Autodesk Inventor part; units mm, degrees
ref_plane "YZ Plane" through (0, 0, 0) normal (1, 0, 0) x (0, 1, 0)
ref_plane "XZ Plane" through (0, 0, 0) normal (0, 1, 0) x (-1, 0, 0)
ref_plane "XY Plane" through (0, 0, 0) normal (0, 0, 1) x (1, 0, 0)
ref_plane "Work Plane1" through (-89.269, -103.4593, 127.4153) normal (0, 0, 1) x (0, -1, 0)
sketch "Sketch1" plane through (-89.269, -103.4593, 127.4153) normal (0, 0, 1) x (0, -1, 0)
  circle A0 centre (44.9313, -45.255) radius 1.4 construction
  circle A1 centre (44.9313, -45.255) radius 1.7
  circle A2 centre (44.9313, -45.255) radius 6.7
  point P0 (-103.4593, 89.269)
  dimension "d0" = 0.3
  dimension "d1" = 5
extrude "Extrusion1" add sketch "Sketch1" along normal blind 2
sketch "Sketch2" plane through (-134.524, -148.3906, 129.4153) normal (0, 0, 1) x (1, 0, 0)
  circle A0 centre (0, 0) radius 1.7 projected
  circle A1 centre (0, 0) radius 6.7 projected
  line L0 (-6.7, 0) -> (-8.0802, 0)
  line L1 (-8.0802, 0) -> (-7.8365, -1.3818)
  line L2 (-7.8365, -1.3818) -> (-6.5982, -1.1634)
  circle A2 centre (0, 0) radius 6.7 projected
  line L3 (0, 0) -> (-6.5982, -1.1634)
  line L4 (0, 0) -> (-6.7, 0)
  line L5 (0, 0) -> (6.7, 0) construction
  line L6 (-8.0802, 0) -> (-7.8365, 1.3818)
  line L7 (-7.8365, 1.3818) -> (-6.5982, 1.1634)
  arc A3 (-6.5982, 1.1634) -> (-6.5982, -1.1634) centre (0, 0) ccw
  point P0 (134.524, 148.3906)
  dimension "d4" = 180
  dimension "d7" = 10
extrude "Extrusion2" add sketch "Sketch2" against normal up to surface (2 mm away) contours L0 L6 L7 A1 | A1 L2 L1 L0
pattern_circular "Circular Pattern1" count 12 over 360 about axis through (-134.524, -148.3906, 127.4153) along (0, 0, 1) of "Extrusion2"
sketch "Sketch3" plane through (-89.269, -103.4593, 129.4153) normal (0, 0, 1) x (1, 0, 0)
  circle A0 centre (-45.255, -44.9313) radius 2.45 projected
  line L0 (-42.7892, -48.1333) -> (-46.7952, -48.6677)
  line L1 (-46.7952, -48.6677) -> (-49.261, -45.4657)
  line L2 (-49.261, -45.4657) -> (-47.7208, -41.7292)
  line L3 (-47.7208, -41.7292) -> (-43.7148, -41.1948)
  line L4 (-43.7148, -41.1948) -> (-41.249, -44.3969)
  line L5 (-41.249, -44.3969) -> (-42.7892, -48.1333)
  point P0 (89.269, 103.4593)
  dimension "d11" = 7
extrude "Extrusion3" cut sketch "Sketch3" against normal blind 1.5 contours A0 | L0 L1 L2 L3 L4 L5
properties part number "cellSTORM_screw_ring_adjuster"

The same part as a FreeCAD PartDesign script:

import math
import FreeCAD as App
import Part
import Sketcher
from FreeCAD import Vector
Q = App.Units.Quantity

doc = App.newDocument("Part")
params = doc.addObject("Spreadsheet::Sheet", "Params")
for row, (alias, value) in enumerate([
    ("sketch1_diameter", "13.4 mm"),
    ("sketch1_diameter2", "3.4 mm"),
    ("pad1_length", "2 mm"),
    ("sketch2_radius", "6.7 mm"),
    ("pad2_length", "2 mm"),
    ("pocket1_length", "1.5 mm"),
], start=1):
    params.set(f"A{row}", alias)
    params.set(f"B{row}", "=" + value)
    params.setAlias(f"B{row}", alias)

body = doc.addObject("PartDesign::Body", "Body")

# Sketch on XY plane
sketch1 = doc.addObject("Sketcher::SketchObject", "Sketch")
body.addObject(sketch1)
sketch1.AttachmentSupport = (doc.XY_Plane, [""])
sketch1.MapMode = "FlatFace"
sketch1.AttachmentOffset = App.Placement(Vector(0, 0, 127.4153), App.Rotation())
sketch1.addGeometry([
    Part.Circle(Vector(-134.5, -148.4, 0), Vector(0, 0, 1), 6.7),
    Part.Circle(Vector(-134.5, -148.4, 0), Vector(0, 0, 1), 1.7),
], False)
sketch1.addConstraint([
    Sketcher.Constraint("Coincident", 1, 3, 0, 3),
    Sketcher.Constraint("Diameter", 0, 13.4),
    Sketcher.Constraint("Diameter", 1, 3.4),
    Sketcher.Constraint("DistanceX", 0, 3, -1, 1, 134.524),
    Sketcher.Constraint("DistanceY", 0, 3, -1, 1, 148.3906),
])
sketch1.setExpression("Constraints[1]", "Params.sketch1_diameter")
sketch1.setExpression("Constraints[2]", "Params.sketch1_diameter2")
pad1 = doc.addObject("PartDesign::Pad", "Pad")
body.addObject(pad1)
pad1.Profile = sketch1
pad1.setExpression("Length", "Params.pad1_length")

# Sketch on XY plane
sketch2 = doc.addObject("Sketcher::SketchObject", "Sketch001")
body.addObject(sketch2)
sketch2.AttachmentSupport = (doc.XY_Plane, [""])
sketch2.MapMode = "FlatFace"
sketch2.AttachmentOffset = App.Placement(Vector(0, 0, 129.4153), App.Rotation())
sketch2.addGeometry([
    Part.LineSegment(Vector(-142.4, -147, 0), Vector(-142.6, -148.4, 0)),  # 0
    Part.LineSegment(Vector(-142.6, -148.4, 0), Vector(-142.4, -149.8, 0)),  # 1
    Part.LineSegment(Vector(-142.4, -149.8, 0), Vector(-141.1, -149.6, 0)),  # 2
    Part.ArcOfCircle(Part.Circle(Vector(-134.5, -148.4, 0), Vector(0, 0, 1), 6.7), math.radians(170), math.radians(190)),  # 3
    Part.LineSegment(Vector(-141.1, -147.2, 0), Vector(-142.4, -147, 0)),  # 4
], False)
sketch2.addConstraint([
    Sketcher.Constraint("Coincident", 0, 2, 1, 1),
    Sketcher.Constraint("Coincident", 1, 2, 2, 1),
    Sketcher.Constraint("Coincident", 2, 2, 3, 2),
    Sketcher.Constraint("Coincident", 3, 1, 4, 1),
    Sketcher.Constraint("Coincident", 4, 2, 0, 1),
    Sketcher.Constraint("Perpendicular", 1, 2),
    Sketcher.Constraint("Perpendicular", 0, 4),
    Sketcher.Constraint("Horizontal", 3, 3, 0, 2),
    Sketcher.Constraint("Vertical", 2, 2, 3, 1),
    Sketcher.Constraint("Vertical", 1, 2, 4, 2),
    Sketcher.Constraint("Radius", 3, 6.7),
    Sketcher.Constraint("DistanceX", 3, 3, -1, 1, 134.524),
    Sketcher.Constraint("DistanceY", 2, 2, -1, 1, 149.554),
    Sketcher.Constraint("DistanceX", 0, 2, 2, 2, 1.482),
    Sketcher.Constraint("Distance", 0, 1.4031),
    Sketcher.Constraint("Distance", 2, 1.2574),
])
sketch2.setExpression("Constraints[10]", "Params.sketch2_radius")
pad2 = doc.addObject("PartDesign::Pad", "Pad001")
body.addObject(pad2)
pad2.Profile = sketch2
pad2.setExpression("Length", "Params.pad2_length")
pad2.Reversed = True
doc.recompute()

datumline = doc.addObject("PartDesign::Line", "DatumLine")
body.addObject(datumline)
datumline.Placement = App.Placement(Vector(-134.524, -148.3906, 0), App.Rotation(Vector(0, 0, 1), Vector(0, 0, 1)))
polarpattern = doc.addObject("PartDesign::PolarPattern", "PolarPattern")
body.addObject(polarpattern)
polarpattern.Originals = [pad2]
polarpattern.Axis = (datumline, [""])
polarpattern.Angle = 360
polarpattern.Occurrences = 12
body.Tip = polarpattern

# Sketch on XY plane
sketch3 = doc.addObject("Sketcher::SketchObject", "Sketch002")
body.addObject(sketch3)
sketch3.AttachmentSupport = (doc.XY_Plane, [""])
sketch3.MapMode = "FlatFace"
sketch3.AttachmentOffset = App.Placement(Vector(0, 0, 129.4153), App.Rotation())
sketch3.addGeometry([
    Part.LineSegment(Vector(-136.1, -152.1, 0), Vector(-132.1, -151.6, 0)),  # 0
    Part.LineSegment(Vector(-132.1, -151.6, 0), Vector(-130.5, -147.9, 0)),  # 1
    Part.LineSegment(Vector(-130.5, -147.9, 0), Vector(-133, -144.7, 0)),  # 2
    Part.LineSegment(Vector(-133, -144.7, 0), Vector(-137, -145.2, 0)),  # 3
    Part.LineSegment(Vector(-137, -145.2, 0), Vector(-138.5, -148.9, 0)),  # 4
    Part.LineSegment(Vector(-138.5, -148.9, 0), Vector(-136.1, -152.1, 0)),  # 5
], False)
sketch3.addConstraint([
    Sketcher.Constraint("Coincident", 0, 2, 1, 1),
    Sketcher.Constraint("Coincident", 1, 2, 2, 1),
    Sketcher.Constraint("Coincident", 2, 2, 3, 1),
    Sketcher.Constraint("Coincident", 3, 2, 4, 1),
    Sketcher.Constraint("Coincident", 4, 2, 5, 1),
    Sketcher.Constraint("Coincident", 5, 2, 0, 1),
    Sketcher.Constraint("Parallel", 0, 3),
    Sketcher.Constraint("Parallel", 1, 4),
    Sketcher.Constraint("Parallel", 2, 5),
    Sketcher.Constraint("Equal", 0, 1),
    Sketcher.Constraint("Equal", 1, 2),
    Sketcher.Constraint("Equal", 2, 3),
    Sketcher.Constraint("Angle", 5, Q("-52.4008 deg")),
    Sketcher.Constraint("DistanceX", 4, 2, -1, 1, 138.53),
    Sketcher.Constraint("DistanceX", 1, 2, -1, 1, 130.518),
    Sketcher.Constraint("DistanceY", 2, 2, -1, 1, 144.654),
    Sketcher.Constraint("DistanceY", 4, 2, -1, 1, 148.925),
    Sketcher.Constraint("DistanceY", 5, 2, -1, 1, 152.127),
])
pocket1 = doc.addObject("PartDesign::Pocket", "Pocket")
body.addObject(pocket1)
pocket1.Profile = sketch3
pocket1.setExpression("Length", "Params.pocket1_length")

doc.recompute()
